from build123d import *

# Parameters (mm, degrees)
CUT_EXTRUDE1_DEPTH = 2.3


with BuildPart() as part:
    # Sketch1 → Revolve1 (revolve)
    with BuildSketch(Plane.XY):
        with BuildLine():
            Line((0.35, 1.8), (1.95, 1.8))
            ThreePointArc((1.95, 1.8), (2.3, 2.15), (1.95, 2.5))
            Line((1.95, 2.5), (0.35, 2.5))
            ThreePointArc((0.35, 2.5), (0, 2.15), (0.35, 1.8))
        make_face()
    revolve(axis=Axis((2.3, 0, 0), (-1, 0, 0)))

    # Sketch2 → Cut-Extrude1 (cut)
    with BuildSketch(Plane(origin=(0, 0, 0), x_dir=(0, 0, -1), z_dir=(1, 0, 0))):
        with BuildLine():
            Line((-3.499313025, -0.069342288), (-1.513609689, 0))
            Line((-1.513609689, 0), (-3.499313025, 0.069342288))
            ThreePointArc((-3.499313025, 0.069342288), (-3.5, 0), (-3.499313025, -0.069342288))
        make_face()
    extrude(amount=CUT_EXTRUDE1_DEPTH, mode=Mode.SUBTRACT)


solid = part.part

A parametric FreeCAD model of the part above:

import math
import FreeCAD as App
import Part
import Sketcher

V = App.Vector
Q = App.Units.Quantity

doc = App.newDocument("Part")
body = doc.addObject("PartDesign::Body", "Body")

# Sketch on XY plane
sketch1 = body.newObject("Sketcher::SketchObject", "Sketch")
sketch1.AttachmentSupport = (doc.getObject("XY_Plane"), [""])
sketch1.MapMode = "FlatFace"
sketch1.addGeometry([
    Part.LineSegment(V(0.35, 1.8, 0), V(1.95, 1.8, 0)),
    Part.ArcOfCircle(Part.Circle(V(1.95, 2.15, 0), V(0, 0, 1), 0.35), math.radians(-90), math.radians(90)),
    Part.LineSegment(V(1.95, 2.5, 0), V(0.35, 2.5, 0)),
    Part.ArcOfCircle(Part.Circle(V(0.35, 2.15, 0), V(0, 0, 1), 0.35), math.radians(90), math.radians(270)),
], False)
sketch1.addConstraint([
    Sketcher.Constraint("Tangent", 0, 2, 1, 1),
    Sketcher.Constraint("Tangent", 1, 2, 2, 1),
    Sketcher.Constraint("Tangent", 2, 2, 3, 1),
    Sketcher.Constraint("Tangent", 3, 2, 0, 1),
    Sketcher.Constraint("Horizontal", 0),
    Sketcher.Constraint("Horizontal", 2),
    Sketcher.Constraint("Radius", 1, Q("0.35 mm")),
    Sketcher.Constraint("DistanceX", 0, 1, 0, 2, Q("1.6 mm")),
    Sketcher.Constraint("DistanceY", -1, 1, 0, 2, Q("1.8 mm")),
    Sketcher.Constraint("DistanceX", -1, 1, 1, 3, Q("1.95 mm")),
])
revolution = body.newObject("PartDesign::Revolution", "Revolution")
revolution.Profile = sketch1
revolution.ReferenceAxis = (sketch1, ["H_Axis"])
revolution.Angle = 360

# Sketch on YZ plane
sketch2 = body.newObject("Sketcher::SketchObject", "Sketch001")
sketch2.AttachmentSupport = (doc.getObject("YZ_Plane"), [""])
sketch2.MapMode = "FlatFace"
sketch2.addGeometry([
    Part.LineSegment(V(-0.07, 3.5, 0), V(0, 1.51, 0)),
    Part.LineSegment(V(0, 1.51, 0), V(0.07, 3.5, 0)),
    Part.ArcOfCircle(Part.Circle(V(0, 0, 0), V(0, 0, 1), 3.5), math.radians(88.86), math.radians(91.14)),
], False)
sketch2.addConstraint([
    Sketcher.Constraint("Coincident", 0, 2, 1, 1),
    Sketcher.Constraint("Coincident", 1, 2, 2, 1),
    Sketcher.Constraint("Coincident", 2, 2, 0, 1),
    Sketcher.Constraint("Coincident", 2, 3, -1, 1),
    Sketcher.Constraint("PointOnObject", 0, 2, -2),
    Sketcher.Constraint("Horizontal", 1, 2, 2, 2),
    Sketcher.Constraint("Radius", 2, Q("3.5 mm")),
    Sketcher.Constraint("Angle", 0, Q("-88 deg")),
    Sketcher.Constraint("DistanceY", -1, 1, 0, 2, Q("1.51361 mm")),
])
pocket1 = body.newObject("PartDesign::Pocket", "Pocket")
pocket1.Profile = sketch2
pocket1.Length = 2.3
pocket1.Reversed = True

doc.recompute()
